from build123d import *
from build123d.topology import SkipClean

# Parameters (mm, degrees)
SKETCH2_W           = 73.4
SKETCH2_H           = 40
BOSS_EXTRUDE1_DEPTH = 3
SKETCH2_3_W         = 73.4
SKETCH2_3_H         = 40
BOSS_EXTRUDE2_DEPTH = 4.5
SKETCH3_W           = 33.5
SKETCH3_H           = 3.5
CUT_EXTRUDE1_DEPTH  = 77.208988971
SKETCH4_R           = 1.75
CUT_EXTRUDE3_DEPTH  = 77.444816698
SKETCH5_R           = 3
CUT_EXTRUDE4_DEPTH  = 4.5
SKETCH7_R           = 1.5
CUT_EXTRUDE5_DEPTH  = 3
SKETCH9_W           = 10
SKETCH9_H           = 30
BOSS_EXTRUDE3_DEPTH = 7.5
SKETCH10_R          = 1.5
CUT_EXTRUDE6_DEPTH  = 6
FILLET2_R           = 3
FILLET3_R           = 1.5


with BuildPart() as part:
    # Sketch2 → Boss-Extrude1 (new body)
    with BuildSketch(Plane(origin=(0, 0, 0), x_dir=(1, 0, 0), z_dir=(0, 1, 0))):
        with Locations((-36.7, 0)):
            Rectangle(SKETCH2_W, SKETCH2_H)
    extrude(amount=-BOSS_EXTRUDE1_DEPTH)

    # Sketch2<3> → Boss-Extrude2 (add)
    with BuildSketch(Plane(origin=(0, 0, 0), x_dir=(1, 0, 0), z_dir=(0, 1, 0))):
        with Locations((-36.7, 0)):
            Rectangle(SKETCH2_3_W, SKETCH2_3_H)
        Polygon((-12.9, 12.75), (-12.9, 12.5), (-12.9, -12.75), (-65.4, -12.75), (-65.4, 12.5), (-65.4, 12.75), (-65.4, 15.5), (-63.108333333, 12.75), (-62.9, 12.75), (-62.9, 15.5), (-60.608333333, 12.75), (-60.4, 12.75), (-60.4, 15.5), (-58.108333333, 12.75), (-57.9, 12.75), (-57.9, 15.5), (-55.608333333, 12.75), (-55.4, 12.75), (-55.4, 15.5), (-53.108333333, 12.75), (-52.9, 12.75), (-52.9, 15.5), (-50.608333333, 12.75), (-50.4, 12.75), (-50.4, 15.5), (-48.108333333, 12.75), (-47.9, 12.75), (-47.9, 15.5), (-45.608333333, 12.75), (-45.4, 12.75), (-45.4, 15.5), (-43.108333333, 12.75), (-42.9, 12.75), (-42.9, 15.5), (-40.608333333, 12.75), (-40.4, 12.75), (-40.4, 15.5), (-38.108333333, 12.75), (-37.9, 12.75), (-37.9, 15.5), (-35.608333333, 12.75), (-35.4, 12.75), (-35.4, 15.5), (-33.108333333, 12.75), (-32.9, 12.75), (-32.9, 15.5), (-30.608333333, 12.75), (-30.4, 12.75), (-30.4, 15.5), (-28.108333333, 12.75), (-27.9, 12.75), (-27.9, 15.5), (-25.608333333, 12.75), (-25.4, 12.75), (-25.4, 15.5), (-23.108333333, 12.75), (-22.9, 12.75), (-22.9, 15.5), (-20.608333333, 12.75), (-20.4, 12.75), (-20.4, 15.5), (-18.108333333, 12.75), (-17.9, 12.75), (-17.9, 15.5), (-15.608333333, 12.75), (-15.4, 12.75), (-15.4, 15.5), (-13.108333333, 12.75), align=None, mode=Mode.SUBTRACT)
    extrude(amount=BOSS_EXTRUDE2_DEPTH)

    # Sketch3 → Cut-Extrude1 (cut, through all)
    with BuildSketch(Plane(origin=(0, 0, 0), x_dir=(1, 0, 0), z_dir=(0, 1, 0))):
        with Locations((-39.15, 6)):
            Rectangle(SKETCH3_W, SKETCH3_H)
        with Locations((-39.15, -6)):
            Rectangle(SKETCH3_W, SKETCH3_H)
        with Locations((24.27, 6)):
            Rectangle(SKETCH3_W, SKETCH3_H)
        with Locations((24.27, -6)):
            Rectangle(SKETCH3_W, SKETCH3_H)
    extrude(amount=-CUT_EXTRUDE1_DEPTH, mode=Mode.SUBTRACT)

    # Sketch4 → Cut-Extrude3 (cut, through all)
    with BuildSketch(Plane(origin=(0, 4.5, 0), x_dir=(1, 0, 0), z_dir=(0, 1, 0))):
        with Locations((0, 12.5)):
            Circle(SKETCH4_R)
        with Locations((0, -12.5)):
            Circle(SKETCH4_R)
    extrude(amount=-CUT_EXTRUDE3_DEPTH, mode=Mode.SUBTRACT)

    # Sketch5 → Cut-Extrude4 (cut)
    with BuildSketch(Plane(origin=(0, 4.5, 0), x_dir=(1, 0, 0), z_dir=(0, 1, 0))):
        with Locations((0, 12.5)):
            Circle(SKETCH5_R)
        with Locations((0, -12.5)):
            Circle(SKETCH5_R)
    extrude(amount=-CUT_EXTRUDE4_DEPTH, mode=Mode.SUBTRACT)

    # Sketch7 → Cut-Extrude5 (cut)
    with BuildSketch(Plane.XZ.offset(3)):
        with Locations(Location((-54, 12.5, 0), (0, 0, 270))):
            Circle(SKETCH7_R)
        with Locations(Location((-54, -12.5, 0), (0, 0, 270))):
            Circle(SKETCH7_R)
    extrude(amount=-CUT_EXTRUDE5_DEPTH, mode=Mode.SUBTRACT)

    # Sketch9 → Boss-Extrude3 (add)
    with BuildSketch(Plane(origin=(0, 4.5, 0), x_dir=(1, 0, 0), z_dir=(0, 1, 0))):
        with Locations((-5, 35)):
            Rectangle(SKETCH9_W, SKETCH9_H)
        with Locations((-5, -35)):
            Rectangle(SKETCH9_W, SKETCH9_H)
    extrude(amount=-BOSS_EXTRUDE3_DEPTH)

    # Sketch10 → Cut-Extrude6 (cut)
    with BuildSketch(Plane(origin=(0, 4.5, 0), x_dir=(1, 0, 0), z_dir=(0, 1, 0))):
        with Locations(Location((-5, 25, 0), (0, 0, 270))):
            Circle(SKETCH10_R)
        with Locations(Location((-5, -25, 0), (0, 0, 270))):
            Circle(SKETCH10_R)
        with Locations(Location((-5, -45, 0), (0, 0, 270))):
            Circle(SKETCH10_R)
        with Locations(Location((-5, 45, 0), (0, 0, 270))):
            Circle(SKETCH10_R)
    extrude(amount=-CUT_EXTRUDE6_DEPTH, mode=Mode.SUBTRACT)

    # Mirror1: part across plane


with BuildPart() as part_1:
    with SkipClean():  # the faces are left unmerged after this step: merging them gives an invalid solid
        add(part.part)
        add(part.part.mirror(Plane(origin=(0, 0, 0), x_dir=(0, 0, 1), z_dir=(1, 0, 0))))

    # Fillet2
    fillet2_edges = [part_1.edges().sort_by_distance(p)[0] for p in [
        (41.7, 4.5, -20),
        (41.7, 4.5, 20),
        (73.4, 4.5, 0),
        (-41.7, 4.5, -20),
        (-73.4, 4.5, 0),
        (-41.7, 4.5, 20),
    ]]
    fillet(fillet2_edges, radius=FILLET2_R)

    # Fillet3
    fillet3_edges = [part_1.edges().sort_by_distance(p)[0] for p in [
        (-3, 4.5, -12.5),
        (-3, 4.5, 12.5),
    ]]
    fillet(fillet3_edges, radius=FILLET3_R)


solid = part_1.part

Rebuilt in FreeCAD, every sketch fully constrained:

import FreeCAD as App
import Part
import Sketcher

V = App.Vector


def edges_at(feature, points):
    """Names of the edges that pass closest to the given points."""
    edges = feature.Shape.Edges
    near = lambda p: min(range(len(edges)), key=lambda i: edges[i].distToShape(Part.Vertex(*p))[0])
    return sorted({f"Edge{near(p) + 1}" for p in points})


def add_polygon(sketch, points):
    """Adds a closed chain of lines whose ends are joined by coincident constraints."""
    first, n = sketch.GeometryCount, len(points)
    for a, b in zip(points, points[1:] + points[:1]):
        sketch.addGeometry(Part.LineSegment(App.Vector(*a, 0), App.Vector(*b, 0)), False)
    for i in range(n):
        sketch.addConstraint(Sketcher.Constraint("Coincident", first + i, 2, first + (i + 1) % n, 1))

doc = App.newDocument("Part")
params = doc.addObject("Spreadsheet::Sheet", "Params")
for row, (alias, value) in enumerate([
    ("sketch1_height", "40 mm"),
    ("sketch1_width", "73.4 mm"),
    ("pad1_length", "3 mm"),
    ("sketch2_height", "40 mm"),
    ("sketch2_width", "73.4 mm"),
    ("sketch2_width2", "52.5 mm"),
    ("sketch2_height2", "25.5 mm"),
    ("sketch2_height3", "28.25 mm"),
    ("pad2_length", "4.5 mm"),
    ("sketch3_width", "33.5 mm"),
    ("sketch3_height", "3.5 mm"),
    ("sketch4_diameter", "3.5 mm"),
    ("sketch5_diameter", "6 mm"),
    ("pocket3_length", "4.5 mm"),
    ("sketch6_diameter", "3 mm"),
    ("pocket4_length", "3 mm"),
    ("sketch7_width", "10 mm"),
    ("sketch7_height", "30 mm"),
    ("pad3_length", "7.5 mm"),
    ("sketch8_diameter", "3 mm"),
    ("pocket5_length", "6 mm"),
    ("fillet_radius", "3 mm"),
    ("fillet2_radius", "1.5 mm"),
], start=1):
    params.set(f"A{row}", alias)
    params.set(f"B{row}", "=" + value)
    params.setAlias(f"B{row}", alias)

body = doc.addObject("PartDesign::Body", "Body")

# Sketch on XZ plane
sketch1 = doc.addObject("Sketcher::SketchObject", "Sketch")
body.addObject(sketch1)
sketch1.AttachmentSupport = (doc.XZ_Plane, [""])
sketch1.MapMode = "FlatFace"
add_polygon(sketch1, [(-73, -20), (-73, 20), (0, 20), (0, -20)])  # lines 0-3
sketch1.addConstraint(Sketcher.Constraint("Vertical", 0))
sketch1.addConstraint(Sketcher.Constraint("Horizontal", 1))
sketch1.addConstraint(Sketcher.Constraint("Vertical", 2))
sketch1.addConstraint(Sketcher.Constraint("Horizontal", 3))
sketch1.addConstraint(Sketcher.Constraint("Symmetric", 1, 2, 2, 2, -1, 1))
sketch1.addConstraint(Sketcher.Constraint("DistanceY", 0, 1, 0, 2, 40.0))
sketch1.addConstraint(Sketcher.Constraint("DistanceX", 1, 1, 1, 2, 73.4))
sketch1.setExpression("Constraints[9]", "Params.sketch1_height")
sketch1.setExpression("Constraints[10]", "Params.sketch1_width")
pad1 = doc.addObject("PartDesign::Pad", "Pad")
body.addObject(pad1)
pad1.Profile = sketch1
pad1.setExpression("Length", "Params.pad1_length")

# Sketch on XZ plane
sketch2 = doc.addObject("Sketcher::SketchObject", "Sketch001")
body.addObject(sketch2)
sketch2.AttachmentSupport = (doc.XZ_Plane, [""])
sketch2.MapMode = "FlatFace"
add_polygon(sketch2, [(-73.4, -20), (-73.4, 20), (0, 20), (0, -20)])  # lines 0-3
add_polygon(sketch2, [(-13.11, -12.75), (-12.9, -12.75), (-12.9, 12.75), (-65.4, 12.75), (-65.4, -15.5), (-63.11, -12.75), (-62.9, -12.75), (-62.9, -15.5), (-60.61, -12.75), (-60.4, -12.75), (-60.4, -15.5), (-58.11, -12.75), (-57.9, -12.75), (-57.9, -15.5), (-55.61, -12.75), (-55.4, -12.75), (-55.4, -15.5), (-53.11, -12.75), (-52.9, -12.75), (-52.9, -15.5), (-50.61, -12.75), (-50.4, -12.75), (-50.4, -15.5), (-48.11, -12.75), (-47.9, -12.75), (-47.9, -15.5), (-45.61, -12.75), (-45.4, -12.75), (-45.4, -15.5), (-43.11, -12.75), (-42.9, -12.75), (-42.9, -15.5), (-40.61, -12.75), (-40.4, -12.75), (-40.4, -15.5), (-38.11, -12.75), (-37.9, -12.75), (-37.9, -15.5), (-35.61, -12.75), (-35.4, -12.75), (-35.4, -15.5), (-33.11, -12.75), (-32.9, -12.75), (-32.9, -15.5), (-30.61, -12.75), (-30.4, -12.75), (-30.4, -15.5), (-28.11, -12.75), (-27.9, -12.75), (-27.9, -15.5), (-25.61, -12.75), (-25.4, -12.75), (-25.4, -15.5), (-23.11, -12.75), (-22.9, -12.75), (-22.9, -15.5), (-20.61, -12.75), (-20.4, -12.75), (-20.4, -15.5), (-18.11, -12.75), (-17.9, -12.75), (-17.9, -15.5), (-15.61, -12.75), (-15.4, -12.75), (-15.4, -15.5)])  # lines 4-68
sketch2.addConstraint(Sketcher.Constraint("Vertical", 0))
sketch2.addConstraint(Sketcher.Constraint("Horizontal", 1))
sketch2.addConstraint(Sketcher.Constraint("Vertical", 2))
sketch2.addConstraint(Sketcher.Constraint("Horizontal", 3))
sketch2.addConstraint(Sketcher.Constraint("Horizontal", 4))
sketch2.addConstraint(Sketcher.Constraint("Vertical", 5))
sketch2.addConstraint(Sketcher.Constraint("Horizontal", 6))
sketch2.addConstraint(Sketcher.Constraint("Vertical", 7))
sketch2.addConstraint(Sketcher.Constraint("Horizontal", 9))
sketch2.addConstraint(Sketcher.Constraint("Vertical", 10))
sketch2.addConstraint(Sketcher.Constraint("Horizontal", 12))
sketch2.addConstraint(Sketcher.Constraint("Vertical", 13))
sketch2.addConstraint(Sketcher.Constraint("Horizontal", 15))
sketch2.addConstraint(Sketcher.Constraint("Vertical", 16))
sketch2.addConstraint(Sketcher.Constraint("Horizontal", 18))
sketch2.addConstraint(Sketcher.Constraint("Vertical", 19))
sketch2.addConstraint(Sketcher.Constraint("Horizontal", 21))
sketch2.addConstraint(Sketcher.Constraint("Vertical", 22))
sketch2.addConstraint(Sketcher.Constraint("Horizontal", 24))
sketch2.addConstraint(Sketcher.Constraint("Vertical", 25))
sketch2.addConstraint(Sketcher.Constraint("Horizontal", 27))
sketch2.addConstraint(Sketcher.Constraint("Vertical", 28))
sketch2.addConstraint(Sketcher.Constraint("Horizontal", 30))
sketch2.addConstraint(Sketcher.Constraint("Vertical", 31))
sketch2.addConstraint(Sketcher.Constraint("Horizontal", 33))
sketch2.addConstraint(Sketcher.Constraint("Vertical", 34))
sketch2.addConstraint(Sketcher.Constraint("Horizontal", 36))
sketch2.addConstraint(Sketcher.Constraint("Vertical", 37))
sketch2.addConstraint(Sketcher.Constraint("Horizontal", 39))
sketch2.addConstraint(Sketcher.Constraint("Vertical", 40))
sketch2.addConstraint(Sketcher.Constraint("Horizontal", 42))
sketch2.addConstraint(Sketcher.Constraint("Vertical", 43))
sketch2.addConstraint(Sketcher.Constraint("Horizontal", 45))
sketch2.addConstraint(Sketcher.Constraint("Vertical", 46))
sketch2.addConstraint(Sketcher.Constraint("Horizontal", 48))
sketch2.addConstraint(Sketcher.Constraint("Vertical", 49))
sketch2.addConstraint(Sketcher.Constraint("Horizontal", 51))
sketch2.addConstraint(Sketcher.Constraint("Vertical", 52))
sketch2.addConstraint(Sketcher.Constraint("Horizontal", 54))
sketch2.addConstraint(Sketcher.Constraint("Vertical", 55))
sketch2.addConstraint(Sketcher.Constraint("Horizontal", 57))
sketch2.addConstraint(Sketcher.Constraint("Vertical", 58))
sketch2.addConstraint(Sketcher.Constraint("Horizontal", 60))
sketch2.addConstraint(Sketcher.Constraint("Vertical", 61))
sketch2.addConstraint(Sketcher.Constraint("Horizontal", 63))
sketch2.addConstraint(Sketcher.Constraint("Vertical", 64))
sketch2.addConstraint(Sketcher.Constraint("Horizontal", 66))
sketch2.addConstraint(Sketcher.Constraint("Vertical", 67))
sketch2.addConstraint(Sketcher.Constraint("Symmetric", 1, 2, 2, 2, -1, 1))
sketch2.addConstraint(Sketcher.Constraint("Parallel", 8, 11))
sketch2.addConstraint(Sketcher.Constraint("Parallel", 11, 14))
sketch2.addConstraint(Sketcher.Constraint("Parallel", 14, 17))
sketch2.addConstraint(Sketcher.Constraint("Parallel", 17, 20))
sketch2.addConstraint(Sketcher.Constraint("Parallel", 20, 23))
sketch2.addConstraint(Sketcher.Constraint("Parallel", 23, 26))
sketch2.addConstraint(Sketcher.Constraint("Parallel", 26, 29))
sketch2.addConstraint(Sketcher.Constraint("Parallel", 29, 32))
sketch2.addConstraint(Sketcher.Constraint("Parallel", 32, 35))
sketch2.addConstraint(Sketcher.Constraint("Parallel", 35, 38))
sketch2.addConstraint(Sketcher.Constraint("Parallel", 38, 41))
sketch2.addConstraint(Sketcher.Constraint("Parallel", 41, 44))
sketch2.addConstraint(Sketcher.Constraint("Parallel", 44, 47))
sketch2.addConstraint(Sketcher.Constraint("Parallel", 47, 50))
sketch2.addConstraint(Sketcher.Constraint("Parallel", 50, 53))
sketch2.addConstraint(Sketcher.Constraint("Parallel", 53, 56))
sketch2.addConstraint(Sketcher.Constraint("Parallel", 56, 59))
sketch2.addConstraint(Sketcher.Constraint("Parallel", 59, 62))
sketch2.addConstraint(Sketcher.Constraint("Parallel", 62, 65))
sketch2.addConstraint(Sketcher.Constraint("Parallel", 65, 68))
sketch2.addConstraint(Sketcher.Constraint("Horizontal", 4, 2, 8, 2))
sketch2.addConstraint(Sketcher.Constraint("Horizontal", 7, 2, 10, 2))
sketch2.addConstraint(Sketcher.Constraint("Horizontal", 9, 2, 11, 2))
sketch2.addConstraint(Sketcher.Constraint("Horizontal", 10, 2, 13, 2))
sketch2.addConstraint(Sketcher.Constraint("Horizontal", 12, 2, 14, 2))
sketch2.addConstraint(Sketcher.Constraint("Horizontal", 13, 2, 16, 2))
sketch2.addConstraint(Sketcher.Constraint("Horizontal", 15, 2, 17, 2))
sketch2.addConstraint(Sketcher.Constraint("Horizontal", 16, 2, 19, 2))
sketch2.addConstraint(Sketcher.Constraint("Horizontal", 18, 2, 20, 2))
sketch2.addConstraint(Sketcher.Constraint("Horizontal", 19, 2, 22, 2))
sketch2.addConstraint(Sketcher.Constraint("Horizontal", 21, 2, 23, 2))
sketch2.addConstraint(Sketcher.Constraint("Horizontal", 22, 2, 25, 2))
sketch2.addConstraint(Sketcher.Constraint("Horizontal", 24, 2, 26, 2))
sketch2.addConstraint(Sketcher.Constraint("Horizontal", 25, 2, 28, 2))
sketch2.addConstraint(Sketcher.Constraint("Horizontal", 27, 2, 29, 2))
sketch2.addConstraint(Sketcher.Constraint("Horizontal", 28, 2, 31, 2))
sketch2.addConstraint(Sketcher.Constraint("Horizontal", 30, 2, 32, 2))
sketch2.addConstraint(Sketcher.Constraint("Horizontal", 31, 2, 34, 2))
sketch2.addConstraint(Sketcher.Constraint("Horizontal", 33, 2, 35, 2))
sketch2.addConstraint(Sketcher.Constraint("Horizontal", 34, 2, 37, 2))
sketch2.addConstraint(Sketcher.Constraint("Horizontal", 36, 2, 38, 2))
sketch2.addConstraint(Sketcher.Constraint("Horizontal", 37, 2, 40, 2))
sketch2.addConstraint(Sketcher.Constraint("Horizontal", 39, 2, 41, 2))
sketch2.addConstraint(Sketcher.Constraint("Horizontal", 40, 2, 43, 2))
sketch2.addConstraint(Sketcher.Constraint("Horizontal", 42, 2, 44, 2))
sketch2.addConstraint(Sketcher.Constraint("Horizontal", 43, 2, 46, 2))
sketch2.addConstraint(Sketcher.Constraint("Horizontal", 45, 2, 47, 2))
sketch2.addConstraint(Sketcher.Constraint("Horizontal", 46, 2, 49, 2))
sketch2.addConstraint(Sketcher.Constraint("Horizontal", 48, 2, 50, 2))
sketch2.addConstraint(Sketcher.Constraint("Horizontal", 49, 2, 52, 2))
sketch2.addConstraint(Sketcher.Constraint("Horizontal", 51, 2, 53, 2))
sketch2.addConstraint(Sketcher.Constraint("Horizontal", 52, 2, 55, 2))
sketch2.addConstraint(Sketcher.Constraint("Horizontal", 54, 2, 56, 2))
sketch2.addConstraint(Sketcher.Constraint("Horizontal", 55, 2, 58, 2))
sketch2.addConstraint(Sketcher.Constraint("Horizontal", 57, 2, 59, 2))
sketch2.addConstraint(Sketcher.Constraint("Horizontal", 58, 2, 61, 2))
sketch2.addConstraint(Sketcher.Constraint("Horizontal", 60, 2, 62, 2))
sketch2.addConstraint(Sketcher.Constraint("Horizontal", 61, 2, 64, 2))
sketch2.addConstraint(Sketcher.Constraint("Horizontal", 63, 2, 65, 2))
sketch2.addConstraint(Sketcher.Constraint("Horizontal", 64, 2, 67, 2))
sketch2.addConstraint(Sketcher.Constraint("Equal", 4, 9))
sketch2.addConstraint(Sketcher.Constraint("Equal", 9, 12))
sketch2.addConstraint(Sketcher.Constraint("Equal", 12, 15))
sketch2.addConstraint(Sketcher.Constraint("Equal", 15, 18))
sketch2.addConstraint(Sketcher.Constraint("Equal", 18, 21))
sketch2.addConstraint(Sketcher.Constraint("Equal", 21, 24))
sketch2.addConstraint(Sketcher.Constraint("Equal", 24, 27))
sketch2.addConstraint(Sketcher.Constraint("Equal", 27, 30))
sketch2.addConstraint(Sketcher.Constraint("Equal", 30, 33))
sketch2.addConstraint(Sketcher.Constraint("Equal", 33, 36))
sketch2.addConstraint(Sketcher.Constraint("Equal", 36, 39))
sketch2.addConstraint(Sketcher.Constraint("Equal", 39, 42))
sketch2.addConstraint(Sketcher.Constraint("Equal", 42, 45))
sketch2.addConstraint(Sketcher.Constraint("Equal", 45, 48))
sketch2.addConstraint(Sketcher.Constraint("Equal", 48, 51))
sketch2.addConstraint(Sketcher.Constraint("Equal", 51, 54))
sketch2.addConstraint(Sketcher.Constraint("Equal", 54, 57))
sketch2.addConstraint(Sketcher.Constraint("Equal", 57, 60))
sketch2.addConstraint(Sketcher.Constraint("Equal", 60, 63))
sketch2.addConstraint(Sketcher.Constraint("Equal", 63, 66))
sketch2.addConstraint(Sketcher.Constraint("DistanceY", 0, 1, 0, 2, 40.0))
sketch2.addConstraint(Sketcher.Constraint("DistanceX", 1, 1, 1, 2, 73.4))
sketch2.addConstraint(Sketcher.Constraint("DistanceX", 6, 2, 6, 1, 52.5))
sketch2.addConstraint(Sketcher.Constraint("DistanceY", 5, 1, 5, 2, 25.5))
sketch2.addConstraint(Sketcher.Constraint("DistanceY", 7, 2, 7, 1, 28.25))
sketch2.addConstraint(Sketcher.Constraint("DistanceX", 4, 2, -1, 1, 12.9))
sketch2.addConstraint(Sketcher.Constraint("DistanceY", 7, 2, -1, 1, 15.5))
sketch2.addConstraint(Sketcher.Constraint("DistanceX", 4, 1, 4, 2, 0.208333))
sketch2.setExpression("Constraints[198]", "Params.sketch2_height")
sketch2.setExpression("Constraints[199]", "Params.sketch2_width")
sketch2.setExpression("Constraints[200]", "Params.sketch2_width2")
sketch2.setExpression("Constraints[201]", "Params.sketch2_height2")
sketch2.setExpression("Constraints[202]", "Params.sketch2_height3")
pad2 = doc.addObject("PartDesign::Pad", "Pad001")
body.addObject(pad2)
pad2.Profile = sketch2
pad2.setExpression("Length", "Params.pad2_length")
pad2.Reversed = True

# Sketch on XZ plane
sketch3 = doc.addObject("Sketcher::SketchObject", "Sketch002")
body.addObject(sketch3)
sketch3.AttachmentSupport = (doc.XZ_Plane, [""])
sketch3.MapMode = "FlatFace"
add_polygon(sketch3, [(-55.9, -7.8), (-55.9, -4.2), (-22.4, -4.2), (-22.4, -7.8)])  # lines 0-3
add_polygon(sketch3, [(-55.9, 4.2), (-55.9, 7.8), (-22.4, 7.8), (-22.4, 4.2)])  # lines 4-7
add_polygon(sketch3, [(7.5, -7.8), (7.5, -4.2), (41, -4.2), (41, -7.8)])  # lines 8-11
add_polygon(sketch3, [(7.5, 4.2), (7.5, 7.8), (41, 7.8), (41, 4.2)])  # lines 12-15
sketch3.addConstraint(Sketcher.Constraint("Vertical", 0))
sketch3.addConstraint(Sketcher.Constraint("Horizontal", 1))
sketch3.addConstraint(Sketcher.Constraint("Vertical", 2))
sketch3.addConstraint(Sketcher.Constraint("Horizontal", 3))
sketch3.addConstraint(Sketcher.Constraint("Vertical", 4))
sketch3.addConstraint(Sketcher.Constraint("Horizontal", 5))
sketch3.addConstraint(Sketcher.Constraint("Vertical", 6))
sketch3.addConstraint(Sketcher.Constraint("Horizontal", 7))
sketch3.addConstraint(Sketcher.Constraint("Vertical", 8))
sketch3.addConstraint(Sketcher.Constraint("Horizontal", 9))
sketch3.addConstraint(Sketcher.Constraint("Vertical", 10))
sketch3.addConstraint(Sketcher.Constraint("Horizontal", 11))
sketch3.addConstraint(Sketcher.Constraint("Vertical", 12))
sketch3.addConstraint(Sketcher.Constraint("Horizontal", 13))
sketch3.addConstraint(Sketcher.Constraint("Vertical", 14))
sketch3.addConstraint(Sketcher.Constraint("Horizontal", 15))
sketch3.addConstraint(Sketcher.Constraint("Symmetric", 3, 2, 4, 2, -1))
sketch3.addConstraint(Sketcher.Constraint("Symmetric", 1, 2, 6, 2, -1))
sketch3.addConstraint(Sketcher.Constraint("Symmetric", 11, 2, 12, 2, -1))
sketch3.addConstraint(Sketcher.Constraint("Symmetric", 9, 2, 14, 2, -1))
sketch3.addConstraint(Sketcher.Constraint("Horizontal", 1, 2, 8, 2))
sketch3.addConstraint(Sketcher.Constraint("Horizontal", 3, 2, 10, 2))
sketch3.addConstraint(Sketcher.Constraint("Equal", 7, 9))
sketch3.addConstraint(Sketcher.Constraint("DistanceX", 1, 1, 1, 2, 33.5))
sketch3.addConstraint(Sketcher.Constraint("DistanceY", 0, 1, 0, 2, 3.5))
sketch3.addConstraint(Sketcher.Constraint("DistanceY", 0, 2, 4, 2, 12.0))
sketch3.addConstraint(Sketcher.Constraint("DistanceX", 0, 2, -1, 1, 55.9))
sketch3.addConstraint(Sketcher.Constraint("DistanceX", -1, 1, 8, 2, 7.52))
sketch3.setExpression("Constraints[39]", "Params.sketch3_width")
sketch3.setExpression("Constraints[40]", "Params.sketch3_height")
pocket1 = doc.addObject("PartDesign::Pocket", "Pocket")
body.addObject(pocket1)
pocket1.Profile = sketch3
pocket1.Type = "ThroughAll"
pocket1.Reversed = True

# Sketch on XZ plane
sketch4 = doc.addObject("Sketcher::SketchObject", "Sketch003")
body.addObject(sketch4)
sketch4.AttachmentSupport = (doc.XZ_Plane, [""])
sketch4.MapMode = "FlatFace"
sketch4.AttachmentOffset = App.Placement(V(0, 0, -4.5), App.Rotation())
sketch4.addGeometry(Part.Circle(V(0, -12.5, 0), V(0, 0, 1), 1.8), False)
sketch4.addGeometry(Part.Circle(V(0, 12.5, 0), V(0, 0, 1), 1.8), False)
sketch4.addConstraint(Sketcher.Constraint("Equal", 0, 1))
sketch4.addConstraint(Sketcher.Constraint("Symmetric", 0, 3, 1, 3, -1, 1))
sketch4.addConstraint(Sketcher.Constraint("PointOnObject", 0, 3, -2))
sketch4.addConstraint(Sketcher.Constraint("Diameter", 0, 3.5))
sketch4.addConstraint(Sketcher.Constraint("DistanceY", 0, 3, 1, 3, 25.0))
sketch4.setExpression("Constraints[3]", "Params.sketch4_diameter")
pocket2 = doc.addObject("PartDesign::Pocket", "Pocket001")
body.addObject(pocket2)
pocket2.Profile = sketch4
pocket2.Type = "ThroughAll"
pocket2.Reversed = True

# Sketch on XZ plane
sketch5 = doc.addObject("Sketcher::SketchObject", "Sketch004")
body.addObject(sketch5)
sketch5.AttachmentSupport = (doc.XZ_Plane, [""])
sketch5.MapMode = "FlatFace"
sketch5.AttachmentOffset = App.Placement(V(0, 0, -4.5), App.Rotation())
sketch5.addGeometry(Part.Circle(V(0, -12.5, 0), V(0, 0, 1), 3), False)
sketch5.addGeometry(Part.Circle(V(0, 12.5, 0), V(0, 0, 1), 3), False)
sketch5.addConstraint(Sketcher.Constraint("Equal", 0, 1))
sketch5.addConstraint(Sketcher.Constraint("Symmetric", 0, 3, 1, 3, -1, 1))
sketch5.addConstraint(Sketcher.Constraint("PointOnObject", 0, 3, -2))
sketch5.addConstraint(Sketcher.Constraint("Diameter", 0, 6.0))
sketch5.addConstraint(Sketcher.Constraint("DistanceY", 0, 3, 1, 3, 25.0))
sketch5.setExpression("Constraints[3]", "Params.sketch5_diameter")
pocket3 = doc.addObject("PartDesign::Pocket", "Pocket002")
body.addObject(pocket3)
pocket3.Profile = sketch5
pocket3.setExpression("Length", "Params.pocket3_length")
pocket3.Reversed = True

# Sketch on XZ plane
sketch6 = doc.addObject("Sketcher::SketchObject", "Sketch005")
body.addObject(sketch6)
sketch6.AttachmentSupport = (doc.XZ_Plane, [""])
sketch6.MapMode = "FlatFace"
sketch6.AttachmentOffset = App.Placement(V(0, 0, 3), App.Rotation())
sketch6.addGeometry(Part.Circle(V(-54, 12.5, 0), V(0, 0, 1), 1.5), False)
sketch6.addGeometry(Part.Circle(V(-54, -12.5, 0), V(0, 0, 1), 1.5), False)
sketch6.addConstraint(Sketcher.Constraint("Equal", 0, 1))
sketch6.addConstraint(Sketcher.Constraint("Symmetric", 0, 3, 1, 3, -1))
sketch6.addConstraint(Sketcher.Constraint("Diameter", 0, 3.0))
sketch6.addConstraint(Sketcher.Constraint("DistanceX", 0, 3, -1, 1, 54.0))
sketch6.addConstraint(Sketcher.Constraint("DistanceY", 1, 3, 0, 3, 25.0))
sketch6.setExpression("Constraints[2]", "Params.sketch6_diameter")
pocket4 = doc.addObject("PartDesign::Pocket", "Pocket003")
body.addObject(pocket4)
pocket4.Profile = sketch6
pocket4.setExpression("Length", "Params.pocket4_length")

# Sketch on XZ plane
sketch7 = doc.addObject("Sketcher::SketchObject", "Sketch006")
body.addObject(sketch7)
sketch7.AttachmentSupport = (doc.XZ_Plane, [""])
sketch7.MapMode = "FlatFace"
sketch7.AttachmentOffset = App.Placement(V(0, 0, -4.5), App.Rotation())
add_polygon(sketch7, [(-10, -50), (-10, -20), (0, -20), (0, -50)])  # lines 0-3
add_polygon(sketch7, [(-10, 20), (-10, 50), (0, 50), (0, 20)])  # lines 4-7
sketch7.addConstraint(Sketcher.Constraint("Vertical", 0))
sketch7.addConstraint(Sketcher.Constraint("Horizontal", 1))
sketch7.addConstraint(Sketcher.Constraint("Vertical", 2))
sketch7.addConstraint(Sketcher.Constraint("Horizontal", 3))
sketch7.addConstraint(Sketcher.Constraint("Vertical", 4))
sketch7.addConstraint(Sketcher.Constraint("Horizontal", 5))
sketch7.addConstraint(Sketcher.Constraint("Vertical", 6))
sketch7.addConstraint(Sketcher.Constraint("Horizontal", 7))
sketch7.addConstraint(Sketcher.Constraint("Symmetric", 2, 2, 5, 2, -1, 1))
sketch7.addConstraint(Sketcher.Constraint("Symmetric", 1, 2, 6, 2, -1))
sketch7.addConstraint(Sketcher.Constraint("Vertical", 3, 2, 4, 2))
sketch7.addConstraint(Sketcher.Constraint("DistanceX", 1, 1, 1, 2, 10.0))
sketch7.addConstraint(Sketcher.Constraint("DistanceY", 0, 1, 0, 2, 30.0))
sketch7.addConstraint(Sketcher.Constraint("DistanceY", 0, 2, -1, 1, 20.0))
sketch7.setExpression("Constraints[19]", "Params.sketch7_width")
sketch7.setExpression("Constraints[20]", "Params.sketch7_height")
pad3 = doc.addObject("PartDesign::Pad", "Pad002")
body.addObject(pad3)
pad3.Profile = sketch7
pad3.setExpression("Length", "Params.pad3_length")

# Sketch on XZ plane
sketch8 = doc.addObject("Sketcher::SketchObject", "Sketch007")
body.addObject(sketch8)
sketch8.AttachmentSupport = (doc.XZ_Plane, [""])
sketch8.MapMode = "FlatFace"
sketch8.AttachmentOffset = App.Placement(V(0, 0, -4.5), App.Rotation())
sketch8.addGeometry(Part.Circle(V(-5, -25, 0), V(0, 0, 1), 1.5), False)
sketch8.addGeometry(Part.Circle(V(-5, 25, 0), V(0, 0, 1), 1.5), False)
sketch8.addGeometry(Part.Circle(V(-5, 45, 0), V(0, 0, 1), 1.5), False)
sketch8.addGeometry(Part.Circle(V(-5, -45, 0), V(0, 0, 1), 1.5), False)
sketch8.addConstraint(Sketcher.Constraint("Equal", 0, 1))
sketch8.addConstraint(Sketcher.Constraint("Equal", 1, 2))
sketch8.addConstraint(Sketcher.Constraint("Equal", 2, 3))
sketch8.addConstraint(Sketcher.Constraint("Symmetric", 0, 3, 1, 3, -1))
sketch8.addConstraint(Sketcher.Constraint("Symmetric", 2, 3, 3, 3, -1))
sketch8.addConstraint(Sketcher.Constraint("Vertical", 1, 3, 2, 3))
sketch8.addConstraint(Sketcher.Constraint("Diameter", 0, 3.0))
sketch8.addConstraint(Sketcher.Constraint("DistanceX", 0, 3, -1, 1, 5.0))
sketch8.addConstraint(Sketcher.Constraint("DistanceY", 0, 3, -1, 1, 25.0))
sketch8.addConstraint(Sketcher.Constraint("DistanceY", -1, 1, 2, 3, 45.0))
sketch8.setExpression("Constraints[6]", "Params.sketch8_diameter")
pocket5 = doc.addObject("PartDesign::Pocket", "Pocket004")
body.addObject(pocket5)
pocket5.Profile = sketch8
pocket5.setExpression("Length", "Params.pocket5_length")
pocket5.Reversed = True
body2 = doc.addObject("PartDesign::Body", "Body001")
doc.recompute()

body2.BaseFeature = body
doc.recompute()

mirroring = doc.addObject("Part::Mirroring", "Mirroring")
mirroring.Source = body
mirroring.Base = V(0, 0, 0)
mirroring.Normal = V(1, 0, 0)
body3 = doc.addObject("PartDesign::Body", "Body002")
body3.BaseFeature = mirroring
boolean = doc.addObject("PartDesign::Boolean", "Boolean")
body2.addObject(boolean)
boolean.Type = "Fuse"
boolean.addObjects([body3])
doc.recompute()

fillet = doc.addObject("PartDesign::Fillet", "Fillet")
body2.addObject(fillet)
fillet.Base = (boolean, edges_at(boolean, [
    (41.7, 4.5, -20),
    (41.7, 4.5, 20),
    (73.4, 4.5, 0),
    (-41.7, 4.5, -20),
    (-73.4, 4.5, 0),
    (-41.7, 4.5, 20),
]))
fillet.setExpression("Radius", "Params.fillet_radius")
doc.recompute()

fillet2 = doc.addObject("PartDesign::Fillet", "Fillet001")
body2.addObject(fillet2)
fillet2.Base = (fillet, edges_at(fillet, [(0, 4.5, -9.5), (0, 4.5, 15.5)]))
fillet2.setExpression("Radius", "Params.fillet2_radius")
mirroring.Visibility = False

doc.recompute()
